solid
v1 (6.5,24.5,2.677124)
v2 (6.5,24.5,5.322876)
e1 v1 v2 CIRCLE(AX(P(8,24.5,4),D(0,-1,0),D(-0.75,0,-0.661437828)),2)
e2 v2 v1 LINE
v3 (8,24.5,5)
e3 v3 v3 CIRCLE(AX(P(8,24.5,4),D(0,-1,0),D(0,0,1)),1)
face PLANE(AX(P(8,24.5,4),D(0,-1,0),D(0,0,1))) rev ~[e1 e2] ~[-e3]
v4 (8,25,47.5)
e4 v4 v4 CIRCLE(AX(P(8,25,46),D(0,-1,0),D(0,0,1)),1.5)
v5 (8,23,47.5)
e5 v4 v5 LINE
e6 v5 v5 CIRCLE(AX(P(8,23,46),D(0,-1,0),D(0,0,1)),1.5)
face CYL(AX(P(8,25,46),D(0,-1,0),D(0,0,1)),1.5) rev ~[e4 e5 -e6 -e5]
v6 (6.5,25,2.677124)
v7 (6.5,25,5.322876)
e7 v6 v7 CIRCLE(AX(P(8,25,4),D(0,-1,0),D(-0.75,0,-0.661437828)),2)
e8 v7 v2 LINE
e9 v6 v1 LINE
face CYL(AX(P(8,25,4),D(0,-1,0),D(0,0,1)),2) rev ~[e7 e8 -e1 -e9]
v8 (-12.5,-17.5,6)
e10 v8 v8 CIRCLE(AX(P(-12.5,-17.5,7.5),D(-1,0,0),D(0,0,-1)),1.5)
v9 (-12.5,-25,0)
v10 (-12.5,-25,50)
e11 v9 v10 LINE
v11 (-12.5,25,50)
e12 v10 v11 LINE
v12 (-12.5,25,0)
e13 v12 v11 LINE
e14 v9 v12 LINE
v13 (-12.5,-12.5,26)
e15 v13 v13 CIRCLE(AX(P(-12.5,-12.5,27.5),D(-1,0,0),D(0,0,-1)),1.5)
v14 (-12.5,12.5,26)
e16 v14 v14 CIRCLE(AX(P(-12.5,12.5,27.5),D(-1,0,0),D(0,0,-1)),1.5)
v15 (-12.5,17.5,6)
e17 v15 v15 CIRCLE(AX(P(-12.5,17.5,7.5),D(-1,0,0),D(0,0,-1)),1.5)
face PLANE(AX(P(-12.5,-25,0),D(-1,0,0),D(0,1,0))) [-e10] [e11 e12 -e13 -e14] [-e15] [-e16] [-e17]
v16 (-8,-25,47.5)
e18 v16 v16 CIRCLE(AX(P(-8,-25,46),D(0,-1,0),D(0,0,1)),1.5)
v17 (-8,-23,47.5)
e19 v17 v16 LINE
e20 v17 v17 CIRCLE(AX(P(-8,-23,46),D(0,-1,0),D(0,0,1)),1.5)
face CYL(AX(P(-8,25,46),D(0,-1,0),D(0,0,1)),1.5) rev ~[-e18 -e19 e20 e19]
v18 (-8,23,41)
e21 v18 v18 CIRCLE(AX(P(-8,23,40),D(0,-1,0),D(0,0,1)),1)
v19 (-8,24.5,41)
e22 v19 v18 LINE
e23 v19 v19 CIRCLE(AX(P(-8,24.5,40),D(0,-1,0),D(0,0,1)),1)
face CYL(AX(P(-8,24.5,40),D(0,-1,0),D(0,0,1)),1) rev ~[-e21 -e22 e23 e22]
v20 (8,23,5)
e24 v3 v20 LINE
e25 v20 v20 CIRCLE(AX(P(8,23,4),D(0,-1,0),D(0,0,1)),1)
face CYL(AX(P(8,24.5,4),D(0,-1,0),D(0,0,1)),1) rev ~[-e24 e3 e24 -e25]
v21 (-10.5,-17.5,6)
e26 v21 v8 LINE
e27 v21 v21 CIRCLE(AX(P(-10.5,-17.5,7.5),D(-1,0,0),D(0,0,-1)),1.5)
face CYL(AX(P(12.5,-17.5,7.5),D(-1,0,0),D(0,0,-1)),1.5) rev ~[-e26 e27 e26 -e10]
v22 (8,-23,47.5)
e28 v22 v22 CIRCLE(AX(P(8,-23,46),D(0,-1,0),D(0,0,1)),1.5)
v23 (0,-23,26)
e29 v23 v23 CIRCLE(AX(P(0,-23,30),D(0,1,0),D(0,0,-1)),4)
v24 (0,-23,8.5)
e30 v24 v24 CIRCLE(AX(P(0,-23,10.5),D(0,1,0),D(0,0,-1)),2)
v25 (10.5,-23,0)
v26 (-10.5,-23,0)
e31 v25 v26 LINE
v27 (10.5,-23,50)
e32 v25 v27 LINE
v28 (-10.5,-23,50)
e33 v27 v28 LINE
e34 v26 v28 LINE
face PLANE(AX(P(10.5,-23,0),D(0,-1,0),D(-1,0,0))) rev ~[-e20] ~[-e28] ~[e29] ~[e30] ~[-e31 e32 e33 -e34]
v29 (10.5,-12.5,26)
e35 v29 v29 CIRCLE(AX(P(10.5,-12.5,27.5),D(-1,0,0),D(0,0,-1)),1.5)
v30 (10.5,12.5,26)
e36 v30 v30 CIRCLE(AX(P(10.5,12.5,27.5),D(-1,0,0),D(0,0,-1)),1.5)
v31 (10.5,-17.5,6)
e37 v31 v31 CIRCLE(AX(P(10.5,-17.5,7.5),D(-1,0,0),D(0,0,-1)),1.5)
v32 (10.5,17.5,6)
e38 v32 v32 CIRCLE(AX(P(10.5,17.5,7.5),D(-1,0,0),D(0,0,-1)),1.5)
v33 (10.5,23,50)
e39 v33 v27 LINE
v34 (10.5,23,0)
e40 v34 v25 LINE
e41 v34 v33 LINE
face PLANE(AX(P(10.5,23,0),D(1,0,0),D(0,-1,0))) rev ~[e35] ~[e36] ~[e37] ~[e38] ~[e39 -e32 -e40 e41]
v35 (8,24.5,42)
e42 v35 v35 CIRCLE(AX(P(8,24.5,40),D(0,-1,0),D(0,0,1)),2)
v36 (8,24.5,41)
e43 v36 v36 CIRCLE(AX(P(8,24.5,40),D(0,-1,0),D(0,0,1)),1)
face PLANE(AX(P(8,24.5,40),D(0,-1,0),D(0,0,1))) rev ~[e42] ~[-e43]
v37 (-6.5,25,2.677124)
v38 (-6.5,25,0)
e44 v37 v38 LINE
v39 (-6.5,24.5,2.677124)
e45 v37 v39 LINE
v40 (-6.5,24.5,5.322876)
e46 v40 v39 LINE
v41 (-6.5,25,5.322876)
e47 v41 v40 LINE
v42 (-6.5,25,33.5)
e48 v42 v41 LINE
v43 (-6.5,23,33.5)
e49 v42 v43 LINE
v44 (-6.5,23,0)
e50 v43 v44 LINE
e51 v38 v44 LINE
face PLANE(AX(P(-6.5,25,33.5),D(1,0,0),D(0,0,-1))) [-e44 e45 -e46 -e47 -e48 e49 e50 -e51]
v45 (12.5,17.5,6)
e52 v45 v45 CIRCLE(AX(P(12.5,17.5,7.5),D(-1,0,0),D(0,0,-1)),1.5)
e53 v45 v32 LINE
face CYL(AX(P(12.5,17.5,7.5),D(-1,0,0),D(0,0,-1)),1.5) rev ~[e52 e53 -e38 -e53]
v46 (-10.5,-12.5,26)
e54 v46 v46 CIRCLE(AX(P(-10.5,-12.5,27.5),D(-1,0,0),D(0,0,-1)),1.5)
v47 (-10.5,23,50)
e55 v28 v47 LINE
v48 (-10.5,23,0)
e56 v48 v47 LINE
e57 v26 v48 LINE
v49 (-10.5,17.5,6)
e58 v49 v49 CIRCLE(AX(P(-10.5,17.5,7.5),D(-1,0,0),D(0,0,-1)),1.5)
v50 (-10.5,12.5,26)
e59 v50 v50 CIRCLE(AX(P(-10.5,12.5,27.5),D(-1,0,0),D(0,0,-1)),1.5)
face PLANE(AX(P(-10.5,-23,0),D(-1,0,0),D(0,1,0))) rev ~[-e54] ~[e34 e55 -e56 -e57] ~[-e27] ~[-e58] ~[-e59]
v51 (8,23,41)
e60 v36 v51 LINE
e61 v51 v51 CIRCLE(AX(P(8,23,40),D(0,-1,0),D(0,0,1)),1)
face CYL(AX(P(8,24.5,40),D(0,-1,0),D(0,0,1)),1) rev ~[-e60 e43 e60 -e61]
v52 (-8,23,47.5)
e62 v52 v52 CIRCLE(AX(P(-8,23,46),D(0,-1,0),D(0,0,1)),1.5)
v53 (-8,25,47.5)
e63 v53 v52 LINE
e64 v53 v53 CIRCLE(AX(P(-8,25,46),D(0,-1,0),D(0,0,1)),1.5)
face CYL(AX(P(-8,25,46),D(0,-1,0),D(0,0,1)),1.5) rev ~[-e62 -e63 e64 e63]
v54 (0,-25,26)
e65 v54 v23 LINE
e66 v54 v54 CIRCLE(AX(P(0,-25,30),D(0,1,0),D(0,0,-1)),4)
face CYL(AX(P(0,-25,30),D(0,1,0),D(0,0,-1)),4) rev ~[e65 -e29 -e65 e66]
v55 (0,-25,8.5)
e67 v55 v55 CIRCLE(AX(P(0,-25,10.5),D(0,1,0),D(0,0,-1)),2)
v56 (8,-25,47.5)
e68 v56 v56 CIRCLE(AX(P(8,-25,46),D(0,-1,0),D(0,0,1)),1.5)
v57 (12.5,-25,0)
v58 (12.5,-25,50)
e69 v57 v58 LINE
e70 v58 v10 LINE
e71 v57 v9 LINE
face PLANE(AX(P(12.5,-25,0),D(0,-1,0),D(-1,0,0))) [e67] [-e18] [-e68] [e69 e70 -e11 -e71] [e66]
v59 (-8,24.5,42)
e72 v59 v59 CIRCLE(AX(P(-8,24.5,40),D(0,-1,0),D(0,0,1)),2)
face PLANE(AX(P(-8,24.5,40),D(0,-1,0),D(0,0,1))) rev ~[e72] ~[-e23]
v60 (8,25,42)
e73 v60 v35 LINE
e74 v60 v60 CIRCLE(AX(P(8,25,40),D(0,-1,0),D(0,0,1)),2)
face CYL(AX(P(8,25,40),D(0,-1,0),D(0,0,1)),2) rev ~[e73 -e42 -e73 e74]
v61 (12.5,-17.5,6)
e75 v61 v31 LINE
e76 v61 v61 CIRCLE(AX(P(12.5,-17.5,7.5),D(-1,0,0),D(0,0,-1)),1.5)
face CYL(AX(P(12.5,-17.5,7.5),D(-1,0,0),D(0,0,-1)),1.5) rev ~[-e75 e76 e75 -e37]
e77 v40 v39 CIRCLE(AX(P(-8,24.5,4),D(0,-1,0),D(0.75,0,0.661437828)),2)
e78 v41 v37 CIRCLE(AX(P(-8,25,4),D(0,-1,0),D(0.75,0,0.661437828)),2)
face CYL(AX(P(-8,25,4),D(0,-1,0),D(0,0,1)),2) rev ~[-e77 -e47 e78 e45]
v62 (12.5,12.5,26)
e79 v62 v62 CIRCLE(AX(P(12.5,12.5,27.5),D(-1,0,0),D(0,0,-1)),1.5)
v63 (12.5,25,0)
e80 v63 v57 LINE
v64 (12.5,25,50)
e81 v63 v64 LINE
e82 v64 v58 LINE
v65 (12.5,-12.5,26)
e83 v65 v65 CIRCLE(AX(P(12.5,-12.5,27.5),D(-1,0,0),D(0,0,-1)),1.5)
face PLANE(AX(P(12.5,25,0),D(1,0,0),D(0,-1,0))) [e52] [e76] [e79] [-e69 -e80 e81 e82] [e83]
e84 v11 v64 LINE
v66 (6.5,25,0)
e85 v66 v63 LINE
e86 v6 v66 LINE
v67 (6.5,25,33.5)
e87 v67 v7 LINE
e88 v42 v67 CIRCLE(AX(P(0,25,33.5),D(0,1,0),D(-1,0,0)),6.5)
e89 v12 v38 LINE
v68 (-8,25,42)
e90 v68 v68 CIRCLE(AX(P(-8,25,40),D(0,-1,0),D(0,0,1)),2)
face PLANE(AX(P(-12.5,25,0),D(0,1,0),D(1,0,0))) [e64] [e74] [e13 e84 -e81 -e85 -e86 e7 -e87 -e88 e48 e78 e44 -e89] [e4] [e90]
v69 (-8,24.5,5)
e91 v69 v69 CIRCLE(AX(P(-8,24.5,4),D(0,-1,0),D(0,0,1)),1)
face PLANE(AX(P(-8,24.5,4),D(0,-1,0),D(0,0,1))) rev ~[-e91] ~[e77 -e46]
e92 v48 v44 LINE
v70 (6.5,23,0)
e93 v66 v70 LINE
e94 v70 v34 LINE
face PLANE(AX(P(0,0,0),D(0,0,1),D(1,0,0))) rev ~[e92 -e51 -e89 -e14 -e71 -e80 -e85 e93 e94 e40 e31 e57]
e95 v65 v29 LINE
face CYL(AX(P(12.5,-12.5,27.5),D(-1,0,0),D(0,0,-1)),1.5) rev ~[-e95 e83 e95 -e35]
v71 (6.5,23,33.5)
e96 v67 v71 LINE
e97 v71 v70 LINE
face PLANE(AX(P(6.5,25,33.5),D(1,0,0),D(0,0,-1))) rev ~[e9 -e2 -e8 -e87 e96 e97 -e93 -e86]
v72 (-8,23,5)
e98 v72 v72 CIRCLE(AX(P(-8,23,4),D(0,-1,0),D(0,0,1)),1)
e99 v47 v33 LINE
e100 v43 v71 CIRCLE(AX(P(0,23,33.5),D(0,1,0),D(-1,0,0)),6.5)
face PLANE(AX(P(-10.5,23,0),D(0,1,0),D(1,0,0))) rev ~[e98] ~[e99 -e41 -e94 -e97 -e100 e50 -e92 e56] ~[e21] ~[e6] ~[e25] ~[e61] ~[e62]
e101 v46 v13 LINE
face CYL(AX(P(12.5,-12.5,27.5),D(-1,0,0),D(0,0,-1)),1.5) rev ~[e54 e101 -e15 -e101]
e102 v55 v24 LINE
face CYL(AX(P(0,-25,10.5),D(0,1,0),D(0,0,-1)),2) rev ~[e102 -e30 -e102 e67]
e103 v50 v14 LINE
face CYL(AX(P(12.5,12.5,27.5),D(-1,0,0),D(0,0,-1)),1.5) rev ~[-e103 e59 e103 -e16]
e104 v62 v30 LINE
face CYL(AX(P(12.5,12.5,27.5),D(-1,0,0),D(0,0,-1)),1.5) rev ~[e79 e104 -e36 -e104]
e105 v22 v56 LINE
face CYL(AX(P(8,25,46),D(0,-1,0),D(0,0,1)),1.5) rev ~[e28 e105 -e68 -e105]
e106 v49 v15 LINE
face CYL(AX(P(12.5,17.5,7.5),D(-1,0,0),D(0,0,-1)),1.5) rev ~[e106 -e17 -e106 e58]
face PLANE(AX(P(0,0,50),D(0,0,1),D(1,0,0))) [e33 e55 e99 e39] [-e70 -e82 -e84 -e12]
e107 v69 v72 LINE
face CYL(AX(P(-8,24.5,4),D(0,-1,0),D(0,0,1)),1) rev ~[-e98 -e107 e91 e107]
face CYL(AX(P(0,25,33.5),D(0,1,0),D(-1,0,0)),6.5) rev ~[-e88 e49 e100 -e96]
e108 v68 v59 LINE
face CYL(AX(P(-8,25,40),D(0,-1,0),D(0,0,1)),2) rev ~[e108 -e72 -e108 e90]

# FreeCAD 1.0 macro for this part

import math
import FreeCAD as App
import Part
import Sketcher

V = App.Vector
Q = App.Units.Quantity


def add_polygon(sketch, points):
    """Adds a closed chain of lines whose ends are joined by coincident constraints."""
    first, n = sketch.GeometryCount, len(points)
    for a, b in zip(points, points[1:] + points[:1]):
        sketch.addGeometry(Part.LineSegment(App.Vector(*a, 0), App.Vector(*b, 0)), False)
    for i in range(n):
        sketch.addConstraint(Sketcher.Constraint("Coincident", first + i, 2, first + (i + 1) % n, 1))

doc = App.newDocument("Part")
params = doc.addObject("Spreadsheet::Sheet", "Params")
for row, (alias, value) in enumerate([
    ("sketch1_width", "25 mm"),
    ("sketch1_width2", "21 mm"),
    ("sketch1_height", "50 mm"),
    ("sketch1_height2", "46 mm"),
    ("pad1_length", "50 mm"),
    ("sketch2_radius", "6.5 mm"),
    ("sketch2_height", "33.5 mm"),
    ("pocket1_length", "2 mm"),
    ("sketch3_diameter", "2 mm"),
    ("hole_diameter", "2 mm"),
    ("hole_depth", "2 mm"),
    ("hole_cbore_diameter", "4 mm"),
    ("hole_cbore_depth", "0.5 mm"),
    ("sketch4_diameter", "4 mm"),
    ("hole2_diameter", "4 mm"),
    ("sketch5_diameter", "3 mm"),
    ("hole3_diameter", "3 mm"),
    ("sketch6_diameter", "8 mm"),
    ("hole4_diameter", "8 mm"),
    ("sketch7_diameter", "3 mm"),
    ("hole5_diameter", "3 mm"),
], start=1):
    params.set(f"A{row}", alias)
    params.set(f"B{row}", "=" + value)
    params.setAlias(f"B{row}", alias)

body = doc.addObject("PartDesign::Body", "Body")

sketch1 = body.newObject("Sketcher::SketchObject", "Sketch")
sketch1.AttachmentSupport = (doc.getObject("XY_Plane"), [""])
sketch1.MapMode = "FlatFace"
add_polygon(sketch1, [(12, 25), (-12, 25), (-12, -25), (12, -25)])
add_polygon(sketch1, [(-10, -23), (-10, 23), (10, 23), (10, -23)])
sketch1.addConstraint([
    Sketcher.Constraint("Horizontal", 0),
    Sketcher.Constraint("Vertical", 1),
    Sketcher.Constraint("Horizontal", 2),
    Sketcher.Constraint("Vertical", 3),
    Sketcher.Constraint("Vertical", 4),
    Sketcher.Constraint("Horizontal", 5),
    Sketcher.Constraint("Vertical", 6),
    Sketcher.Constraint("Horizontal", 7),
    Sketcher.Constraint("Symmetric", 0, 2, 2, 2, -1, 1),
    Sketcher.Constraint("Symmetric", 4, 2, 6, 2, -1, 1),
    Sketcher.Constraint("DistanceX", 0, 2, 0, 1, Q("25 mm")),
    Sketcher.Constraint("DistanceX", 5, 1, 5, 2, Q("21 mm")),
    Sketcher.Constraint("DistanceY", 1, 2, 1, 1, Q("50 mm")),
    Sketcher.Constraint("DistanceY", 4, 1, 4, 2, Q("46 mm")),
])
sketch1.setExpression("Constraints[18]", "Params.sketch1_width")
sketch1.setExpression("Constraints[19]", "Params.sketch1_width2")
sketch1.setExpression("Constraints[20]", "Params.sketch1_height")
sketch1.setExpression("Constraints[21]", "Params.sketch1_height2")
pad1 = body.newObject("PartDesign::Pad", "Pad")
pad1.Profile = sketch1
pad1.setExpression("Length", "Params.pad1_length")

sketch2 = body.newObject("Sketcher::SketchObject", "Sketch001")
sketch2.AttachmentSupport = (doc.getObject("XZ_Plane"), [""])
sketch2.MapMode = "FlatFace"
sketch2.AttachmentOffset = App.Placement(V(0, 0, -25), App.Rotation())
sketch2.addGeometry([
    Part.LineSegment(V(6, 0, 0), V(-6, 0, 0)),
    Part.LineSegment(V(-6, 0, 0), V(-6, 34, 0)),
    Part.ArcOfCircle(Part.Circle(V(0, 34, 0), V(0, 0, 1), 6), math.radians(0), math.radians(180)),
    Part.LineSegment(V(6, 34, 0), V(6, 0, 0)),
], False)
sketch2.addConstraint([
    Sketcher.Constraint("Coincident", 0, 2, 1, 1),
    Sketcher.Constraint("Tangent", 1, 2, 2, 2),
    Sketcher.Constraint("Tangent", 2, 1, 3, 1),
    Sketcher.Constraint("Coincident", 3, 2, 0, 1),
    Sketcher.Constraint("Horizontal", 0),
    Sketcher.Constraint("Vertical", 1),
    Sketcher.Constraint("Vertical", 3),
    Sketcher.Constraint("Symmetric", 0, 2, 3, 2, -1, 1),
    Sketcher.Constraint("Radius", 2, Q("6.5 mm")),
    Sketcher.Constraint("DistanceY", 1, 1, 1, 2, Q("33.5 mm")),
])
sketch2.setExpression("Constraints[8]", "Params.sketch2_radius")
sketch2.setExpression("Constraints[9]", "Params.sketch2_height")
pocket1 = body.newObject("PartDesign::Pocket", "Pocket")
pocket1.Profile = sketch2
pocket1.setExpression("Length", "Params.pocket1_length")
pocket1.Reversed = True

sketch3 = body.newObject("Sketcher::SketchObject", "Sketch002")
sketch3.AttachmentSupport = (doc.getObject("XZ_Plane"), [""])
sketch3.MapMode = "FlatFace"
sketch3.AttachmentOffset = App.Placement(V(0, 0, -25), App.Rotation())
sketch3.addGeometry([
    Part.Circle(V(-8, 4, 0), V(0, 0, 1), 1),
    Part.Circle(V(8, 4, 0), V(0, 0, 1), 1),
    Part.Circle(V(8, 40, 0), V(0, 0, 1), 1),
    Part.Circle(V(-8, 40, 0), V(0, 0, 1), 1),
], False)
sketch3.addConstraint([
    Sketcher.Constraint("Equal", 0, 1),
    Sketcher.Constraint("Equal", 1, 2),
    Sketcher.Constraint("Equal", 2, 3),
    Sketcher.Constraint("Symmetric", 0, 3, 1, 3, -2),
    Sketcher.Constraint("Symmetric", 2, 3, 3, 3, -2),
    Sketcher.Constraint("Vertical", 1, 3, 2, 3),
    Sketcher.Constraint("Diameter", 0, Q("2 mm")),
    Sketcher.Constraint("DistanceX", 0, 3, -1, 1, Q("8 mm")),
    Sketcher.Constraint("DistanceY", -1, 1, 0, 3, Q("4 mm")),
    Sketcher.Constraint("DistanceY", -1, 1, 2, 3, Q("40 mm")),
])
sketch3.setExpression("Constraints[6]", "Params.sketch3_diameter")
doc.recompute()
hole = body.newObject("PartDesign::Hole", "Hole")
hole.Profile = sketch3
hole.ThreadType = "None"
hole.setExpression("Diameter", "Params.hole_diameter")
hole.DepthType = "Dimension"
hole.setExpression("Depth", "Params.hole_depth")
hole.DrillPoint = "Angled"
hole.DrillPointAngle = 118
hole.HoleCutType = "Counterbore"
hole.setExpression("HoleCutDiameter", "Params.hole_cbore_diameter")
hole.setExpression("HoleCutDepth", "Params.hole_cbore_depth")
hole.Reversed = True

sketch4 = body.newObject("Sketcher::SketchObject", "Sketch003")
sketch4.AttachmentSupport = (doc.getObject("XZ_Plane"), [""])
sketch4.MapMode = "FlatFace"
sketch4.AttachmentOffset = App.Placement(V(0, 0, 25), App.Rotation())
sketch4.addGeometry(Part.Circle(V(0, 10.5, 0), V(0, 0, 1), 2), False)
sketch4.addConstraint([
    Sketcher.Constraint("PointOnObject", 0, 3, -2),
    Sketcher.Constraint("Diameter", 0, Q("4 mm")),
    Sketcher.Constraint("DistanceY", -1, 1, 0, 3, Q("10.5 mm")),
])
sketch4.setExpression("Constraints[1]", "Params.sketch4_diameter")
doc.recompute()
hole2 = body.newObject("PartDesign::Hole", "Hole001")
hole2.Profile = sketch4
hole2.ThreadType = "None"
hole2.setExpression("Diameter", "Params.hole2_diameter")
hole2.DepthType = "ThroughAll"

sketch5 = body.newObject("Sketcher::SketchObject", "Sketch004")
sketch5.AttachmentSupport = (doc.getObject("XZ_Plane"), [""])
sketch5.MapMode = "FlatFace"
sketch5.AttachmentOffset = App.Placement(V(0, 0, -25), App.Rotation())
sketch5.addGeometry([
    Part.Circle(V(-8, 46, 0), V(0, 0, 1), 1.5),
    Part.Circle(V(8, 46, 0), V(0, 0, 1), 1.5),
], False)
sketch5.addConstraint([
    Sketcher.Constraint("Equal", 0, 1),
    Sketcher.Constraint("Symmetric", 0, 3, 1, 3, -2),
    Sketcher.Constraint("Diameter", 0, Q("3 mm")),
    Sketcher.Constraint("DistanceX", 0, 3, -1, 1, Q("8 mm")),
    Sketcher.Constraint("DistanceY", -1, 1, 0, 3, Q("46 mm")),
])
sketch5.setExpression("Constraints[2]", "Params.sketch5_diameter")
doc.recompute()
hole3 = body.newObject("PartDesign::Hole", "Hole002")
hole3.Profile = sketch5
hole3.ThreadType = "None"
hole3.setExpression("Diameter", "Params.hole3_diameter")
hole3.DepthType = "ThroughAll"
hole3.Reversed = True

sketch6 = body.newObject("Sketcher::SketchObject", "Sketch005")
sketch6.AttachmentSupport = (doc.getObject("XZ_Plane"), [""])
sketch6.MapMode = "FlatFace"
sketch6.AttachmentOffset = App.Placement(V(0, 0, 25), App.Rotation())
sketch6.addGeometry(Part.Circle(V(0, 30, 0), V(0, 0, 1), 4), False)
sketch6.addConstraint([
    Sketcher.Constraint("PointOnObject", 0, 3, -2),
    Sketcher.Constraint("Diameter", 0, Q("8 mm")),
    Sketcher.Constraint("DistanceY", -1, 1, 0, 3, Q("30 mm")),
])
sketch6.setExpression("Constraints[1]", "Params.sketch6_diameter")
doc.recompute()
hole4 = body.newObject("PartDesign::Hole", "Hole003")
hole4.Profile = sketch6
hole4.ThreadType = "None"
hole4.setExpression("Diameter", "Params.hole4_diameter")
hole4.DepthType = "ThroughAll"

sketch7 = body.newObject("Sketcher::SketchObject", "Sketch006")
sketch7.AttachmentSupport = (doc.getObject("YZ_Plane"), [""])
sketch7.MapMode = "FlatFace"
sketch7.AttachmentOffset = App.Placement(V(0, 0, 12.5), App.Rotation())
sketch7.addGeometry([
    Part.Circle(V(12.5, 27.5, 0), V(0, 0, 1), 1.5),
    Part.Circle(V(-12.5, 27.5, 0), V(0, 0, 1), 1.5),
    Part.Circle(V(-17.5, 7.5, 0), V(0, 0, 1), 1.5),
    Part.Circle(V(17.5, 7.5, 0), V(0, 0, 1), 1.5),
], False)
sketch7.addConstraint([
    Sketcher.Constraint("Equal", 0, 1),
    Sketcher.Constraint("Equal", 1, 2),
    Sketcher.Constraint("Equal", 2, 3),
    Sketcher.Constraint("Symmetric", 0, 3, 1, 3, -2),
    Sketcher.Constraint("Symmetric", 2, 3, 3, 3, -2),
    Sketcher.Constraint("Diameter", 0, Q("3 mm")),
    Sketcher.Constraint("DistanceX", 1, 3, 0, 3, Q("25 mm")),
    Sketcher.Constraint("DistanceX", 2, 3, 1, 3, Q("5 mm")),
    Sketcher.Constraint("DistanceY", 2, 3, 1, 3, Q("20 mm")),
    Sketcher.Constraint("DistanceY", -1, 1, 0, 3, Q("27.5 mm")),
])
sketch7.setExpression("Constraints[5]", "Params.sketch7_diameter")
doc.recompute()
hole5 = body.newObject("PartDesign::Hole", "Hole004")
hole5.Profile = sketch7
hole5.ThreadType = "None"
hole5.setExpression("Diameter", "Params.hole5_diameter")
hole5.DepthType = "ThroughAll"

doc.recompute()
